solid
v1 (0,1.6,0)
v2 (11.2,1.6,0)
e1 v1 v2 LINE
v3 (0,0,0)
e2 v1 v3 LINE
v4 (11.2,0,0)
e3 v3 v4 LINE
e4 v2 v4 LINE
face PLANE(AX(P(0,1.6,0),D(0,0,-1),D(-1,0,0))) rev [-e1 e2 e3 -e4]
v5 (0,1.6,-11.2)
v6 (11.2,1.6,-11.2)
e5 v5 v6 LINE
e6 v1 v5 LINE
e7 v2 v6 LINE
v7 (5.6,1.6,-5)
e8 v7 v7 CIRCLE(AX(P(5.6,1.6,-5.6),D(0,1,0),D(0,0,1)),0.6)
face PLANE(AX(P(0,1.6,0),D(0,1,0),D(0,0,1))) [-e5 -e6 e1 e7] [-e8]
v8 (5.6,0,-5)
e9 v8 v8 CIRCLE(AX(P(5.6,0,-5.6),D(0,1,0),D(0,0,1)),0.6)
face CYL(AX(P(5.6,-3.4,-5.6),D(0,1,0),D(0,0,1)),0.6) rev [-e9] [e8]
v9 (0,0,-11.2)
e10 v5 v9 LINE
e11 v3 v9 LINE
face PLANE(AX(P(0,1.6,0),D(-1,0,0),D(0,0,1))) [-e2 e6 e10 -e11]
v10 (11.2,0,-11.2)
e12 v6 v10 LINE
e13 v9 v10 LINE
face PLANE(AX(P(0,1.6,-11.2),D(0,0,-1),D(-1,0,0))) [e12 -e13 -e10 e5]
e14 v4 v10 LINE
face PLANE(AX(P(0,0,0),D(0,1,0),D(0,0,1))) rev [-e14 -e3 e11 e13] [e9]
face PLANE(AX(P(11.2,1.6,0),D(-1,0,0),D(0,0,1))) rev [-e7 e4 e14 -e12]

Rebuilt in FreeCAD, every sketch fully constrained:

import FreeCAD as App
import Part
import Sketcher
Q = App.Units.Quantity


def add_polygon(sketch, points):
    """Adds a closed chain of lines whose ends are joined by coincident constraints."""
    first, n = sketch.GeometryCount, len(points)
    for a, b in zip(points, points[1:] + points[:1]):
        sketch.addGeometry(Part.LineSegment(App.Vector(*a, 0), App.Vector(*b, 0)), False)
    for i in range(n):
        sketch.addConstraint(Sketcher.Constraint("Coincident", first + i, 2, first + (i + 1) % n, 1))

doc = App.newDocument("Part")
body = doc.addObject("PartDesign::Body", "Body")

# Sketch on XZ plane
sketch1 = body.newObject("Sketcher::SketchObject", "Sketch")
sketch1.AttachmentSupport = (doc.getObject("XZ_Plane"), [""])
sketch1.MapMode = "FlatFace"
add_polygon(sketch1, [(0, -11), (0, 0), (11, 0), (11, -11)])  # lines 0-3
sketch1.addConstraint(Sketcher.Constraint("Vertical", 0))
sketch1.addConstraint(Sketcher.Constraint("Horizontal", 1))
sketch1.addConstraint(Sketcher.Constraint("Vertical", 2))
sketch1.addConstraint(Sketcher.Constraint("Horizontal", 3))
sketch1.addConstraint(Sketcher.Constraint("Coincident", 0, 2, -1, 1))
sketch1.addConstraint(Sketcher.Constraint("Equal", 3, 0))
sketch1.addConstraint(Sketcher.Constraint("DistanceX", 1, 1, 1, 2, Q("11.2 mm")))
pad1 = body.newObject("PartDesign::Pad", "Pad")
pad1.Profile = sketch1
pad1.Length = 1.6
pad1.Reversed = True

# Sketch on XZ plane
sketch2 = body.newObject("Sketcher::SketchObject", "Sketch001")
sketch2.AttachmentSupport = (doc.getObject("XZ_Plane"), [""])
sketch2.MapMode = "FlatFace"
sketch2.AttachmentOffset = App.Placement(App.Vector(0, 0, -1.6), App.Rotation())
sketch2.addGeometry(Part.Circle(App.Vector(5.6, -5.6, 0), App.Vector(0, 0, 1), 0.6), False)
sketch2.addConstraint(Sketcher.Constraint("Diameter", 0, Q("1.2 mm")))
sketch2.addConstraint(Sketcher.Constraint("DistanceX", -1, 1, 0, 3, Q("5.6 mm")))
sketch2.addConstraint(Sketcher.Constraint("DistanceY", 0, 3, -1, 1, Q("5.6 mm")))
pocket1 = body.newObject("PartDesign::Pocket", "Pocket")
pocket1.Profile = sketch2
pocket1.Length = 5
pocket1.Reversed = True

doc.recompute()
